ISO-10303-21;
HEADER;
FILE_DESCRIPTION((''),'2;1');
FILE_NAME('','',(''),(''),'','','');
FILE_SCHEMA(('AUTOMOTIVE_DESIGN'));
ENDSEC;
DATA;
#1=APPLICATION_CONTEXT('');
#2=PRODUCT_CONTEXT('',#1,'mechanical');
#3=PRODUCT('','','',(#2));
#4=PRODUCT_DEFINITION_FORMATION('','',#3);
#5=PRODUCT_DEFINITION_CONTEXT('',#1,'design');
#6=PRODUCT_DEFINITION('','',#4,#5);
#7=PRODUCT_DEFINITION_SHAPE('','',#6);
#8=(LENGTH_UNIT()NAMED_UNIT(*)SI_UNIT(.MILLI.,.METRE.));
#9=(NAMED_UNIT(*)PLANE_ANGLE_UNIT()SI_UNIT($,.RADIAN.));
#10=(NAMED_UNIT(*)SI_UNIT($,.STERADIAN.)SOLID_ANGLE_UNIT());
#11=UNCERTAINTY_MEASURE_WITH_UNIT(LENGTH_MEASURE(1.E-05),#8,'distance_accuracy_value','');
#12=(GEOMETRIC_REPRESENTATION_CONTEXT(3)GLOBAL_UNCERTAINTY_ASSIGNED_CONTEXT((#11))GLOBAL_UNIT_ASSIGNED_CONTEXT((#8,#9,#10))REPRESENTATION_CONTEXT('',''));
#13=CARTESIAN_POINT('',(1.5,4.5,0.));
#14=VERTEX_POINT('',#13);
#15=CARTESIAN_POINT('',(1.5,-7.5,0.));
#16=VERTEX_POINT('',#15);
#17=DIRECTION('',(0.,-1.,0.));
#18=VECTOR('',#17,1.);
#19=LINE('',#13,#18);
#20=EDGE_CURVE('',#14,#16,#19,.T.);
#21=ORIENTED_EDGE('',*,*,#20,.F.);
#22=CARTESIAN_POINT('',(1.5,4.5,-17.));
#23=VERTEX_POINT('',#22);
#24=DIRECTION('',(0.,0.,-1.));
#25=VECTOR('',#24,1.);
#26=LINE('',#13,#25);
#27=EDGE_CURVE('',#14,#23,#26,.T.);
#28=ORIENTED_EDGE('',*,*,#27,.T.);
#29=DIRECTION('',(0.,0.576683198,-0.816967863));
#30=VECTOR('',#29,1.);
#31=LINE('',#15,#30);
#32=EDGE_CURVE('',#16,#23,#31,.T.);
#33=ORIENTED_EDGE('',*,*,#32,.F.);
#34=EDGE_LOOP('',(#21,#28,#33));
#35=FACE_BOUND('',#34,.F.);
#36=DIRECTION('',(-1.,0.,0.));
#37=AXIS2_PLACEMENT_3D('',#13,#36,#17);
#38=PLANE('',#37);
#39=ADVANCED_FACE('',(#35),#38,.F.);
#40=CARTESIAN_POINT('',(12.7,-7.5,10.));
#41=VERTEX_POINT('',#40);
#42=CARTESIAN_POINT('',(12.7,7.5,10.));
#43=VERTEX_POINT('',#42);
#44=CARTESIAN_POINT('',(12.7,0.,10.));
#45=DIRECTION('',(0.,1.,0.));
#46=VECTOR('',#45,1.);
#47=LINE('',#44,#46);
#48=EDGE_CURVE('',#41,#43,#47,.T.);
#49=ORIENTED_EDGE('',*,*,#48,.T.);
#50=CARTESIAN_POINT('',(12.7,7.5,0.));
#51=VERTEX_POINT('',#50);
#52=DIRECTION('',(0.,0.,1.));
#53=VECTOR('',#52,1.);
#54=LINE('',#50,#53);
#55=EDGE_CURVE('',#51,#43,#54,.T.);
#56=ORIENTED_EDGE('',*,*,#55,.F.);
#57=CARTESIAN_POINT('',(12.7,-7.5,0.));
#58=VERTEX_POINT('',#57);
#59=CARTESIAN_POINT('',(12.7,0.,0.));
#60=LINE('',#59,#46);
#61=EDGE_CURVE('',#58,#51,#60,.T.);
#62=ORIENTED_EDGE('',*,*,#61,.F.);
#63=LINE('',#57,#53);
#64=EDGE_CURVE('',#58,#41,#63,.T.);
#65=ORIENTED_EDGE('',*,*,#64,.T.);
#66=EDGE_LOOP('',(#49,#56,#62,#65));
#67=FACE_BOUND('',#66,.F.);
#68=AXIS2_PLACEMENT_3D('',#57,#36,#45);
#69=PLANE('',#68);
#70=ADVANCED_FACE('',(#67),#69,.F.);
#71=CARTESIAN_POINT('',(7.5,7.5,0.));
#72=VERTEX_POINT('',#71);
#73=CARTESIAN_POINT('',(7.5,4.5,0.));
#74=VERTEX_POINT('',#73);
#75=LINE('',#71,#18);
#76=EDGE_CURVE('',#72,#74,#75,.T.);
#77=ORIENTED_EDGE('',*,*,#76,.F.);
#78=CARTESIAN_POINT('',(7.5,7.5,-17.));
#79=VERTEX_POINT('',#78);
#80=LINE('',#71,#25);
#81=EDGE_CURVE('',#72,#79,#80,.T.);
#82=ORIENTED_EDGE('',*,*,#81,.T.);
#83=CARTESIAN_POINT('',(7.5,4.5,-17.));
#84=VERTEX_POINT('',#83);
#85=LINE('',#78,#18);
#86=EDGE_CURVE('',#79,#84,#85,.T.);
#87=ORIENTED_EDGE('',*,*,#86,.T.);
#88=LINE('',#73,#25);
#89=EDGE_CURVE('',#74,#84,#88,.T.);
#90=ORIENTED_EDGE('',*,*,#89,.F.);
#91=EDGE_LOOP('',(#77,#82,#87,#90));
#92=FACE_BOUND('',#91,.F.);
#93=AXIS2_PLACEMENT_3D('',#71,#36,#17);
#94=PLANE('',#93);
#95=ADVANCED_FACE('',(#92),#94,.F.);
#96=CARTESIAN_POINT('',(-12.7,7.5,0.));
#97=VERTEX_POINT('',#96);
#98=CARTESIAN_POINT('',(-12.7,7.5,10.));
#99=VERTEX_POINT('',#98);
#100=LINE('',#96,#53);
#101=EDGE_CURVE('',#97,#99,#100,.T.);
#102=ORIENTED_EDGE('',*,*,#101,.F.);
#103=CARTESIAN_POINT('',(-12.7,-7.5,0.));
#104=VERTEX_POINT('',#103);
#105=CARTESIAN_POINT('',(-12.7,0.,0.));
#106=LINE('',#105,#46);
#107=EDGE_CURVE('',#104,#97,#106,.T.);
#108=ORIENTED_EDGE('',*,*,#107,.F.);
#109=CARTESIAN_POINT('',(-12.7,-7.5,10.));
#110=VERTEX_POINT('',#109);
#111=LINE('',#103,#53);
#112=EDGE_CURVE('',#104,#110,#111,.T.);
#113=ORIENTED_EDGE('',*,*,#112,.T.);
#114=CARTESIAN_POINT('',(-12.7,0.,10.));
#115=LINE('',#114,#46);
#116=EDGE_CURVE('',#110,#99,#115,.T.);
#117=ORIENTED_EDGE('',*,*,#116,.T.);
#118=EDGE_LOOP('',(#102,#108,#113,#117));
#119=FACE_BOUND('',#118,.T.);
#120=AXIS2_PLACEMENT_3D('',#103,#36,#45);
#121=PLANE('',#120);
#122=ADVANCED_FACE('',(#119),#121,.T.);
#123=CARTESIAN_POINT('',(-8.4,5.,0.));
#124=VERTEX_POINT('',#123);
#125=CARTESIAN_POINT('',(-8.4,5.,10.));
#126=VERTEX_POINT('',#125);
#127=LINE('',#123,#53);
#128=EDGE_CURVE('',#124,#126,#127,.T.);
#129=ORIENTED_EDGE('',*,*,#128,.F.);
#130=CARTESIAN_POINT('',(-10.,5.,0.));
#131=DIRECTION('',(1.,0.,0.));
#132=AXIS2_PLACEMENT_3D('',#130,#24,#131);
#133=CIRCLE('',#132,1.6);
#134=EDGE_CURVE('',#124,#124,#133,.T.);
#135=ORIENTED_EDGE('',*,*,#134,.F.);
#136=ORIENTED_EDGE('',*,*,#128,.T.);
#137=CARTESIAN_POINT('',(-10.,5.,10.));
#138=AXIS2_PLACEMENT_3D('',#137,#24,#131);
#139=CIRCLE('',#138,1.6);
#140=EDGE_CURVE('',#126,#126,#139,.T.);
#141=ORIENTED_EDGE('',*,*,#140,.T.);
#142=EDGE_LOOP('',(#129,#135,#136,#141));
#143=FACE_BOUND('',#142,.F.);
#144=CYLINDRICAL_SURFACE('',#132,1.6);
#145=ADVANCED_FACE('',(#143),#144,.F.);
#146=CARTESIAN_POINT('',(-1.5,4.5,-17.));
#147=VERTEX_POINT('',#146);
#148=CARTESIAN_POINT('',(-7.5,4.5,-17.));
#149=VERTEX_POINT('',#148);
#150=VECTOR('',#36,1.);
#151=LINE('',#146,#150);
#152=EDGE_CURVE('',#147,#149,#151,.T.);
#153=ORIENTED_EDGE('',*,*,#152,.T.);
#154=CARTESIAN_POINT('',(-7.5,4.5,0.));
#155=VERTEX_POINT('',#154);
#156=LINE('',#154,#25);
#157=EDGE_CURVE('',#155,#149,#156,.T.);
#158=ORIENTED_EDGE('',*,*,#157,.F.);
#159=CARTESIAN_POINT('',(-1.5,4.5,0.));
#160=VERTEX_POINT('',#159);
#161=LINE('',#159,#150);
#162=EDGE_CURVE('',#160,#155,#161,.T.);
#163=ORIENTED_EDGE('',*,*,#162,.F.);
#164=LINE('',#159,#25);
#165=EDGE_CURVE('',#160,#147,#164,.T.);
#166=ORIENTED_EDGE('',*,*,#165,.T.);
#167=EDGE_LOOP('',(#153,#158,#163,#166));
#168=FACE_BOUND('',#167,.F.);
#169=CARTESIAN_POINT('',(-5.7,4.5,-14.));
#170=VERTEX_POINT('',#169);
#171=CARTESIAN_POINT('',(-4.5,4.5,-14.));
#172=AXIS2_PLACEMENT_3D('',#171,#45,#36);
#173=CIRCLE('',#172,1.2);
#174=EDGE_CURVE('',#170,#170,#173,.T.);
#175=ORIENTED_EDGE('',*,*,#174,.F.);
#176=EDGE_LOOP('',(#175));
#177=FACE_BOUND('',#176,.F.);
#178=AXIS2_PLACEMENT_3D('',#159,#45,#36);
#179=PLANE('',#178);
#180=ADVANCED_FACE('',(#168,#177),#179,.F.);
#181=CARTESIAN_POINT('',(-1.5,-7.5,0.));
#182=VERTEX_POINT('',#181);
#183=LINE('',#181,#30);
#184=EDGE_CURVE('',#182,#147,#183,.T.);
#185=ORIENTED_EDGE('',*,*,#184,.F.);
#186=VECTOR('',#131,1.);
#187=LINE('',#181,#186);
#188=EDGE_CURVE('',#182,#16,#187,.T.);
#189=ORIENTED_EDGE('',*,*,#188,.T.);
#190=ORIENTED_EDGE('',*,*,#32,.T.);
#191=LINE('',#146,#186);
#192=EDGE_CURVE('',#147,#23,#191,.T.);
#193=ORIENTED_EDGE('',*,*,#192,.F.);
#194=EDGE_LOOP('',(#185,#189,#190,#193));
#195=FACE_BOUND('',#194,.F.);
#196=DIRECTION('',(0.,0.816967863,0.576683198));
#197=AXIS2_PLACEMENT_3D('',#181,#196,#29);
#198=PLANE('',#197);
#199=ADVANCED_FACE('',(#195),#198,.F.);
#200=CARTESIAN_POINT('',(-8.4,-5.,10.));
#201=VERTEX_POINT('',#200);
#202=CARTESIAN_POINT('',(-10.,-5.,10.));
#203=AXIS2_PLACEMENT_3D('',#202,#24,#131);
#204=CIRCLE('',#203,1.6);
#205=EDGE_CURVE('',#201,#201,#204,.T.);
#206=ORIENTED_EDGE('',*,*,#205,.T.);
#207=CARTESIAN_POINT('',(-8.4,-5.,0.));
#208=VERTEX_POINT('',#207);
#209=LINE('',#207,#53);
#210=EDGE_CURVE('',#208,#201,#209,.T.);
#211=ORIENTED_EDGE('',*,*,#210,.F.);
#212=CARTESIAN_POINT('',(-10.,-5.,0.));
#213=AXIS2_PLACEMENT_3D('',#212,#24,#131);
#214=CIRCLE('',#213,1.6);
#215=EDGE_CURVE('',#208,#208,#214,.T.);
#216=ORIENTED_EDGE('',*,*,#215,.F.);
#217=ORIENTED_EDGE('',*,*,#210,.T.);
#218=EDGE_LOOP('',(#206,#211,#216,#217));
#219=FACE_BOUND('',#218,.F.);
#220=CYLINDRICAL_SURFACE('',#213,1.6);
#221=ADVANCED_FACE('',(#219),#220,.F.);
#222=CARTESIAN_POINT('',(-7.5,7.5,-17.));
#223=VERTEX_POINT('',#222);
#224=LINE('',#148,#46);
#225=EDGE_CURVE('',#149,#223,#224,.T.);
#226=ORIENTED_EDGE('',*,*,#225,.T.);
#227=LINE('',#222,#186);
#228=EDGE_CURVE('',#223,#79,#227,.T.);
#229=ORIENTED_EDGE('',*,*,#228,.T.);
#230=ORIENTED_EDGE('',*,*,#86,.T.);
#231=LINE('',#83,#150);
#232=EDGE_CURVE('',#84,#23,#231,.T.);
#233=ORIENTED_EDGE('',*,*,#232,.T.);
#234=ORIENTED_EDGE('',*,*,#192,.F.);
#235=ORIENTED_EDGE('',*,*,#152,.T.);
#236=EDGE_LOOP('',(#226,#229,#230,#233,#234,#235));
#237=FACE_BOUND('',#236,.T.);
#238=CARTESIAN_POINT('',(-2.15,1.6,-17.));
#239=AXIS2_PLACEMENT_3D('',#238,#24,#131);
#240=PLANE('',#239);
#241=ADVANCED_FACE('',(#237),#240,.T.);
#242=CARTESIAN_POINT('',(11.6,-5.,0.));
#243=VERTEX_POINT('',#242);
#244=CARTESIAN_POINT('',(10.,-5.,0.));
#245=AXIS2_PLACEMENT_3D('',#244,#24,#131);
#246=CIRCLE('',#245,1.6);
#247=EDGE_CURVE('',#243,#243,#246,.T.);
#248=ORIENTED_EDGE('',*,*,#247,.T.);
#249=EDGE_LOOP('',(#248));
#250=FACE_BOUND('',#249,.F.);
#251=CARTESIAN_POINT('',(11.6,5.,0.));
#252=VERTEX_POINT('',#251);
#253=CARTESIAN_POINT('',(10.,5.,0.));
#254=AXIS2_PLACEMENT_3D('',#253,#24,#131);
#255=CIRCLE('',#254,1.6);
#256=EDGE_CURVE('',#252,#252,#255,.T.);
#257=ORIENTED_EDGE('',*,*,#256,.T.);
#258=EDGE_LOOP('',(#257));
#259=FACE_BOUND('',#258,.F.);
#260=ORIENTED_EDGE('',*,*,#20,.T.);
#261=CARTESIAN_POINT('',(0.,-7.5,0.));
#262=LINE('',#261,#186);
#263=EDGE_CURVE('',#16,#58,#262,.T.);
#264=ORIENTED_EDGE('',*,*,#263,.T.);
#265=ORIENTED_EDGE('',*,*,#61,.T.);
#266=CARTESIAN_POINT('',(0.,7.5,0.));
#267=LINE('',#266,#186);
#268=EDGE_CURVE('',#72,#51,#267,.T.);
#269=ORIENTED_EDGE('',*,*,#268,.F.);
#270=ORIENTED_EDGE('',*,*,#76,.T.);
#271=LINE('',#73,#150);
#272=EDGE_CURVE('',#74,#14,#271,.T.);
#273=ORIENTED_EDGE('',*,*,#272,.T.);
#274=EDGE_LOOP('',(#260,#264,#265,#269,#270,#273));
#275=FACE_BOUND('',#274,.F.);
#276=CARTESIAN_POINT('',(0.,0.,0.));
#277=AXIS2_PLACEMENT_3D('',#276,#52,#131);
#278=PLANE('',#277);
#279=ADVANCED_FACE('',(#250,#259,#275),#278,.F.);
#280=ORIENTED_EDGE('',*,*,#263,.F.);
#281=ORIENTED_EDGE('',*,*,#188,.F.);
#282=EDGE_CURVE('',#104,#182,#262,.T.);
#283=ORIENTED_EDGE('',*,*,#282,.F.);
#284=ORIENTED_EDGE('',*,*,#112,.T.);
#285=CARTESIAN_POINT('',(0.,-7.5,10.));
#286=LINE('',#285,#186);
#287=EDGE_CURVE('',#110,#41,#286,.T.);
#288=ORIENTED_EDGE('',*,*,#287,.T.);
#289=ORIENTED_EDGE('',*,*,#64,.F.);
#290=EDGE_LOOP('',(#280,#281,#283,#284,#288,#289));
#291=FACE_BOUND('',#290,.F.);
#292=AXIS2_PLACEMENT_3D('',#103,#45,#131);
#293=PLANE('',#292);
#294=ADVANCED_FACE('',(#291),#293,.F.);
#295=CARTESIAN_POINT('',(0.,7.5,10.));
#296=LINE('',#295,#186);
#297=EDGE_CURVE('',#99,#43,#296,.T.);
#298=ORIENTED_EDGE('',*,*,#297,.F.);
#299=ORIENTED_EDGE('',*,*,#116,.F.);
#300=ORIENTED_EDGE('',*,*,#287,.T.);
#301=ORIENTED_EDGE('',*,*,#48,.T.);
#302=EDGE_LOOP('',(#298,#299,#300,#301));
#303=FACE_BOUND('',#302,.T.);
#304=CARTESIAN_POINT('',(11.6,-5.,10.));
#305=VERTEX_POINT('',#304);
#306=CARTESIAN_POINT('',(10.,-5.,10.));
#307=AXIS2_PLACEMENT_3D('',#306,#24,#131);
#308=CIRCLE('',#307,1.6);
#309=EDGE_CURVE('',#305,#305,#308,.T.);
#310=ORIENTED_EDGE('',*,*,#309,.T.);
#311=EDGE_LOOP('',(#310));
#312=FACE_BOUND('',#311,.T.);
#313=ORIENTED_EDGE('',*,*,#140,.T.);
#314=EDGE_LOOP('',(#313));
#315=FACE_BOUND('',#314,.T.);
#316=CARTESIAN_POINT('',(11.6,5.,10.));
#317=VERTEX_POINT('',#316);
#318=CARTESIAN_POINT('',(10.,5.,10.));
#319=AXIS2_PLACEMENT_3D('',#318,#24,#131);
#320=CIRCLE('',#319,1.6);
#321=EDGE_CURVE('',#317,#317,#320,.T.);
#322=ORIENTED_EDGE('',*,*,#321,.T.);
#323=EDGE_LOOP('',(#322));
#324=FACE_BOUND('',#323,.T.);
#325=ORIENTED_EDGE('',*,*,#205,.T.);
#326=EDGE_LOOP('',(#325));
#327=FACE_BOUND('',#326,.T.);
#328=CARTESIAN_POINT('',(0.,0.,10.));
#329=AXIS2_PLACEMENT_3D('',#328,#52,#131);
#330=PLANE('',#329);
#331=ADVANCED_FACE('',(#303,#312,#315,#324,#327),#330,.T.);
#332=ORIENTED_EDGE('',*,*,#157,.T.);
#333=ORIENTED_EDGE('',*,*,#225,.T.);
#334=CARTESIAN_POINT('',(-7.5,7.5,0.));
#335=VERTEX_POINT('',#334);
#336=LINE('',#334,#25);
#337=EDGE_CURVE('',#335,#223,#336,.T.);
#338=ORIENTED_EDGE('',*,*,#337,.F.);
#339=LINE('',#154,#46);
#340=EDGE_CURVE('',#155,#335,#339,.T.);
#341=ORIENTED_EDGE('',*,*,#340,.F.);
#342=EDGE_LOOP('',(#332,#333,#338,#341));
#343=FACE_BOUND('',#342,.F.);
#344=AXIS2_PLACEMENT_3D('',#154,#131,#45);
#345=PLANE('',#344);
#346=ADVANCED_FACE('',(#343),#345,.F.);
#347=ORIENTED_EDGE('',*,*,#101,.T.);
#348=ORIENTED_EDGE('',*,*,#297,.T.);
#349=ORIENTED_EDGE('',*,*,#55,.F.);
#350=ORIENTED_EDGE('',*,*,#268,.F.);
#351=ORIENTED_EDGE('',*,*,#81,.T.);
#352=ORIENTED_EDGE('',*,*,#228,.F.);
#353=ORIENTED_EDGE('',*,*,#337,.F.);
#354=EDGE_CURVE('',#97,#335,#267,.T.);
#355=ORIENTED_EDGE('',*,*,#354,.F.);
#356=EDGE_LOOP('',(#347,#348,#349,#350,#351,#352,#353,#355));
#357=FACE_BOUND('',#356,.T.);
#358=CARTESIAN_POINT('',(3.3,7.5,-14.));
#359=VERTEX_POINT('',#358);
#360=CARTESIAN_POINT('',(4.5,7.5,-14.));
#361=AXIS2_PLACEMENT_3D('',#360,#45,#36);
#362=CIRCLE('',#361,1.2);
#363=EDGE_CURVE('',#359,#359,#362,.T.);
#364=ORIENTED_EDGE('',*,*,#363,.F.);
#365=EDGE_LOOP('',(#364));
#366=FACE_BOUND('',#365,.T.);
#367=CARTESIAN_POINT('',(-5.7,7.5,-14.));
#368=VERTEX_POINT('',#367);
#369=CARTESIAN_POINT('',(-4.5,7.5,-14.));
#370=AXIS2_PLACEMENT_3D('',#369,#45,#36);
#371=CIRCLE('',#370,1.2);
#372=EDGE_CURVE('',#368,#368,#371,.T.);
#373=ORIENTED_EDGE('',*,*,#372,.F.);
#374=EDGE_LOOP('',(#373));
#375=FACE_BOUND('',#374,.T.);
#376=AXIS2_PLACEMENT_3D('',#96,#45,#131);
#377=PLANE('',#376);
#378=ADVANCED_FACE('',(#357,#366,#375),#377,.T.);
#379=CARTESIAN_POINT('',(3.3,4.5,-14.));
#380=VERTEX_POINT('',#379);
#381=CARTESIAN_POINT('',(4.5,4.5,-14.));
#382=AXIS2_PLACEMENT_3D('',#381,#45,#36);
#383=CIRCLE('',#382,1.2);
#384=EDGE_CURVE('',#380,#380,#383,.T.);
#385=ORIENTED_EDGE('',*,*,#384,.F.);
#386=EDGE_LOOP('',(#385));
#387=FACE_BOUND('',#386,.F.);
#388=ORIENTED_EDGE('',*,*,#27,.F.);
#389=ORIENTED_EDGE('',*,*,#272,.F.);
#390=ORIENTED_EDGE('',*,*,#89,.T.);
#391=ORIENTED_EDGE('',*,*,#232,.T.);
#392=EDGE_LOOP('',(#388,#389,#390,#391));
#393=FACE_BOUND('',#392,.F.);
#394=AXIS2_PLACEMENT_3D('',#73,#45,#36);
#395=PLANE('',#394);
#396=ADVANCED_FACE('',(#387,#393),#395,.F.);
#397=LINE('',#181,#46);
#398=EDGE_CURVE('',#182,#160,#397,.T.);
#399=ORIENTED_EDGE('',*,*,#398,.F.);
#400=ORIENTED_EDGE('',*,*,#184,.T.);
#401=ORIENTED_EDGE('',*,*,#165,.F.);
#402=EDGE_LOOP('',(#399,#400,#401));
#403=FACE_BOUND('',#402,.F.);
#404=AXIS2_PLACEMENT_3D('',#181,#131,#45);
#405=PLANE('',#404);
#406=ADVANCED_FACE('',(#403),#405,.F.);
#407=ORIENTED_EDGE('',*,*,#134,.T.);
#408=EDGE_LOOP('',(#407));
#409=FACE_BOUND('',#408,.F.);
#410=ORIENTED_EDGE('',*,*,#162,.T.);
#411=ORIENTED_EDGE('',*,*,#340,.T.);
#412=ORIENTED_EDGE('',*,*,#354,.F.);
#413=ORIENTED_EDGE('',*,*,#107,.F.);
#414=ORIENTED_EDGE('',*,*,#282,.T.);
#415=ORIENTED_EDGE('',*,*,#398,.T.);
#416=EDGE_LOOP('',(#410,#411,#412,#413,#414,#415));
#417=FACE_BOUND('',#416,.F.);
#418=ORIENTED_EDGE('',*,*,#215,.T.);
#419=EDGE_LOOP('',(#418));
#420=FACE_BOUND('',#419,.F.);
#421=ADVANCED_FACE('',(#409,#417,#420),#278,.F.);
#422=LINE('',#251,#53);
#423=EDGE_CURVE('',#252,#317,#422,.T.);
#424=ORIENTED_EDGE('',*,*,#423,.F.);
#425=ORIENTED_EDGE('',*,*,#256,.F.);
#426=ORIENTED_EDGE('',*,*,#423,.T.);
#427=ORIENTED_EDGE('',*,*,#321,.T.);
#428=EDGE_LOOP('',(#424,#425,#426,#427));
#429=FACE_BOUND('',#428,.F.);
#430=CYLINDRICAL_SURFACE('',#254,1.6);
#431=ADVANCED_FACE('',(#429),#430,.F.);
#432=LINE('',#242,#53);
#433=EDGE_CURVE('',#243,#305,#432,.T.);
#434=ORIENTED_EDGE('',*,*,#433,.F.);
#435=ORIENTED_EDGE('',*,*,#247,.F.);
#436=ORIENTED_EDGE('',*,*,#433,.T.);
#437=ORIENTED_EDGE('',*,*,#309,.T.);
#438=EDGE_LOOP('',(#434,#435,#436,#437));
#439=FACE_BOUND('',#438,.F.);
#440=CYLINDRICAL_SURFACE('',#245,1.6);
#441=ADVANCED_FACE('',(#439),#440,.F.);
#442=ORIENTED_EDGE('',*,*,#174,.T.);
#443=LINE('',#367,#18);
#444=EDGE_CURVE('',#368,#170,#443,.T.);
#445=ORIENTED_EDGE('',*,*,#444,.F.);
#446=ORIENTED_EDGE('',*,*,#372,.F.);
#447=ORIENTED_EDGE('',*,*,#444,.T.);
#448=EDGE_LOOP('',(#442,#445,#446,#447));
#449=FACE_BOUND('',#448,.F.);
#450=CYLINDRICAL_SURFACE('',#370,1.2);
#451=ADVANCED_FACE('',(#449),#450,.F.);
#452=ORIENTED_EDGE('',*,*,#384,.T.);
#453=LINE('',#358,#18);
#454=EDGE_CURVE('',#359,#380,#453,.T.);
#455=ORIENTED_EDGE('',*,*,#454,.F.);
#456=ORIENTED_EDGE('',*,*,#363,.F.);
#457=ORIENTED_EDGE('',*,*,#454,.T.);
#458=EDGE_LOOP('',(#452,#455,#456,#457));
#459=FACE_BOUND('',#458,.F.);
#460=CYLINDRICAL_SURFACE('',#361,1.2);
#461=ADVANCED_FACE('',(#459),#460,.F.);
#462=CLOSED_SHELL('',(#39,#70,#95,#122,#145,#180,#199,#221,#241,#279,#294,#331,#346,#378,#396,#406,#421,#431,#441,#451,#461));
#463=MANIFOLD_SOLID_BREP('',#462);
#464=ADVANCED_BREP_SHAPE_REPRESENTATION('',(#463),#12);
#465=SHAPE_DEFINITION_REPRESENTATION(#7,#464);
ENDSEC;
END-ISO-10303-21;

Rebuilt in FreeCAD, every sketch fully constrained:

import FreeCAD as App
import Part
import Sketcher
from FreeCAD import Vector
Q = App.Units.Quantity


def add_polygon(sketch, points):
    """Adds a closed chain of lines whose ends are joined by coincident constraints."""
    first, n = sketch.GeometryCount, len(points)
    for a, b in zip(points, points[1:] + points[:1]):
        sketch.addGeometry(Part.LineSegment(App.Vector(*a, 0), App.Vector(*b, 0)), False)
    for i in range(n):
        sketch.addConstraint(Sketcher.Constraint("Coincident", first + i, 2, first + (i + 1) % n, 1))

doc = App.newDocument("Part")
body = doc.addObject("PartDesign::Body", "Body")

# Sketch on XY plane
sketch1 = body.newObject("Sketcher::SketchObject", "Sketch")
sketch1.AttachmentSupport = (doc.getObject("XY_Plane"), [""])
sketch1.MapMode = "FlatFace"
add_polygon(sketch1, [(-13, 8), (-13, -8), (13, -8), (13, 8)])  # lines 0-3
sketch1.addConstraint([
    Sketcher.Constraint("Vertical", 0),
    Sketcher.Constraint("Horizontal", 1),
    Sketcher.Constraint("Vertical", 2),
    Sketcher.Constraint("Horizontal", 3),
    Sketcher.Constraint("Symmetric", 0, 2, 2, 2, -1, 1),
    Sketcher.Constraint("DistanceY", 0, 2, 0, 1, Q("15 mm")),
    Sketcher.Constraint("DistanceX", 1, 1, 1, 2, Q("25.4 mm")),
])
pad1 = body.newObject("PartDesign::Pad", "Pad")
pad1.Profile = sketch1
pad1.Length = 10

# Sketch on XY plane
sketch2 = body.newObject("Sketcher::SketchObject", "Sketch001")
sketch2.AttachmentSupport = (doc.getObject("XY_Plane"), [""])
sketch2.MapMode = "FlatFace"
sketch2.addGeometry([
    Part.Circle(Vector(-10, -5, 0), Vector(0, 0, 1), 1.6),
    Part.Circle(Vector(-10, 5, 0), Vector(0, 0, 1), 1.6),
    Part.Circle(Vector(10, 5, 0), Vector(0, 0, 1), 1.6),
    Part.Circle(Vector(10, -5, 0), Vector(0, 0, 1), 1.6),
], False)
sketch2.addConstraint([
    Sketcher.Constraint("Equal", 0, 1),
    Sketcher.Constraint("Equal", 1, 2),
    Sketcher.Constraint("Equal", 2, 3),
    Sketcher.Constraint("Symmetric", 0, 3, 2, 3, -1, 1),
    Sketcher.Constraint("Symmetric", 1, 3, 3, 3, -1, 1),
    Sketcher.Constraint("Symmetric", 1, 3, 2, 3, -2),
    Sketcher.Constraint("Diameter", 0, Q("3.2 mm")),
    Sketcher.Constraint("DistanceX", 0, 3, -1, 1, Q("10 mm")),
    Sketcher.Constraint("DistanceY", 0, 3, -1, 1, Q("5 mm")),
])
pocket1 = body.newObject("PartDesign::Pocket", "Pocket")
pocket1.Profile = sketch2
pocket1.Type = "ThroughAll"
pocket1.Reversed = True

# Sketch on XY plane
sketch3 = body.newObject("Sketcher::SketchObject", "Sketch002")
sketch3.AttachmentSupport = (doc.getObject("XY_Plane"), [""])
sketch3.MapMode = "FlatFace"
add_polygon(sketch3, [(-7.5, 4.5), (-7.5, 7.5), (7.5, 7.5), (7.5, 4.5), (1.5, 4.5), (1.5, -7.5), (-1.5, -7.5), (-1.5, 4.5)])  # lines 0-7
sketch3.addConstraint([
    Sketcher.Constraint("Vertical", 0),
    Sketcher.Constraint("Horizontal", 1),
    Sketcher.Constraint("Vertical", 2),
    Sketcher.Constraint("Horizontal", 3),
    Sketcher.Constraint("Vertical", 4),
    Sketcher.Constraint("Horizontal", 5),
    Sketcher.Constraint("Vertical", 6),
    Sketcher.Constraint("Horizontal", 7),
    Sketcher.Constraint("Symmetric", 3, 2, 6, 2, -2),
    Sketcher.Constraint("Equal", 3, 7),
    Sketcher.Constraint("Equal", 5, 0),
    Sketcher.Constraint("DistanceX", 1, 1, 1, 2, Q("15 mm")),
    Sketcher.Constraint("DistanceX", 3, 2, 3, 1, Q("6 mm")),
    Sketcher.Constraint("DistanceY", 4, 2, 4, 1, Q("12 mm")),
    Sketcher.Constraint("DistanceY", -1, 1, 0, 2, Q("7.5 mm")),
])
pad2 = body.newObject("PartDesign::Pad", "Pad001")
pad2.Profile = sketch3
pad2.Length = 17
pad2.Reversed = True

# Sketch on YZ plane
sketch4 = body.newObject("Sketcher::SketchObject", "Sketch003")
sketch4.AttachmentSupport = (doc.getObject("YZ_Plane"), [""])
sketch4.MapMode = "FlatFace"
sketch4.AttachmentOffset = App.Placement(Vector(0, 0, -1.5), App.Rotation())
add_polygon(sketch4, [(-8, -17), (-8, 0), (4, -17)])  # lines 0-2
sketch4.addConstraint([
    Sketcher.Constraint("Vertical", 0),
    Sketcher.Constraint("Horizontal", 2),
    Sketcher.Constraint("PointOnObject", 0, 2, -1),
    Sketcher.Constraint("DistanceX", 2, 2, 2, 1, Q("12 mm")),
    Sketcher.Constraint("DistanceY", 0, 1, 0, 2, Q("17 mm")),
    Sketcher.Constraint("DistanceX", 0, 2, -1, 1, Q("7.5 mm")),
])
pocket2 = body.newObject("PartDesign::Pocket", "Pocket001")
pocket2.Profile = sketch4
pocket2.Type = "ThroughAll"
pocket2.Reversed = True

# Sketch on XZ plane
sketch5 = body.newObject("Sketcher::SketchObject", "Sketch004")
sketch5.AttachmentSupport = (doc.getObject("XZ_Plane"), [""])
sketch5.MapMode = "FlatFace"
sketch5.AttachmentOffset = App.Placement(Vector(0, 0, -7.5), App.Rotation())
sketch5.addGeometry([
    Part.Circle(Vector(4.5, -14, 0), Vector(0, 0, 1), 1.2),
    Part.Circle(Vector(-4.5, -14, 0), Vector(0, 0, 1), 1.2),
], False)
sketch5.addConstraint([
    Sketcher.Constraint("Equal", 0, 1),
    Sketcher.Constraint("Symmetric", 0, 3, 1, 3, -2),
    Sketcher.Constraint("Diameter", 0, Q("2.4 mm")),
    Sketcher.Constraint("DistanceY", 0, 3, -1, 1, Q("14 mm")),
    Sketcher.Constraint("DistanceX", 1, 3, 0, 3, Q("9 mm")),
])
pocket3 = body.newObject("PartDesign::Pocket", "Pocket002")
pocket3.Profile = sketch5
pocket3.Type = "ThroughAll"
pocket3.Reversed = True

doc.recompute()
